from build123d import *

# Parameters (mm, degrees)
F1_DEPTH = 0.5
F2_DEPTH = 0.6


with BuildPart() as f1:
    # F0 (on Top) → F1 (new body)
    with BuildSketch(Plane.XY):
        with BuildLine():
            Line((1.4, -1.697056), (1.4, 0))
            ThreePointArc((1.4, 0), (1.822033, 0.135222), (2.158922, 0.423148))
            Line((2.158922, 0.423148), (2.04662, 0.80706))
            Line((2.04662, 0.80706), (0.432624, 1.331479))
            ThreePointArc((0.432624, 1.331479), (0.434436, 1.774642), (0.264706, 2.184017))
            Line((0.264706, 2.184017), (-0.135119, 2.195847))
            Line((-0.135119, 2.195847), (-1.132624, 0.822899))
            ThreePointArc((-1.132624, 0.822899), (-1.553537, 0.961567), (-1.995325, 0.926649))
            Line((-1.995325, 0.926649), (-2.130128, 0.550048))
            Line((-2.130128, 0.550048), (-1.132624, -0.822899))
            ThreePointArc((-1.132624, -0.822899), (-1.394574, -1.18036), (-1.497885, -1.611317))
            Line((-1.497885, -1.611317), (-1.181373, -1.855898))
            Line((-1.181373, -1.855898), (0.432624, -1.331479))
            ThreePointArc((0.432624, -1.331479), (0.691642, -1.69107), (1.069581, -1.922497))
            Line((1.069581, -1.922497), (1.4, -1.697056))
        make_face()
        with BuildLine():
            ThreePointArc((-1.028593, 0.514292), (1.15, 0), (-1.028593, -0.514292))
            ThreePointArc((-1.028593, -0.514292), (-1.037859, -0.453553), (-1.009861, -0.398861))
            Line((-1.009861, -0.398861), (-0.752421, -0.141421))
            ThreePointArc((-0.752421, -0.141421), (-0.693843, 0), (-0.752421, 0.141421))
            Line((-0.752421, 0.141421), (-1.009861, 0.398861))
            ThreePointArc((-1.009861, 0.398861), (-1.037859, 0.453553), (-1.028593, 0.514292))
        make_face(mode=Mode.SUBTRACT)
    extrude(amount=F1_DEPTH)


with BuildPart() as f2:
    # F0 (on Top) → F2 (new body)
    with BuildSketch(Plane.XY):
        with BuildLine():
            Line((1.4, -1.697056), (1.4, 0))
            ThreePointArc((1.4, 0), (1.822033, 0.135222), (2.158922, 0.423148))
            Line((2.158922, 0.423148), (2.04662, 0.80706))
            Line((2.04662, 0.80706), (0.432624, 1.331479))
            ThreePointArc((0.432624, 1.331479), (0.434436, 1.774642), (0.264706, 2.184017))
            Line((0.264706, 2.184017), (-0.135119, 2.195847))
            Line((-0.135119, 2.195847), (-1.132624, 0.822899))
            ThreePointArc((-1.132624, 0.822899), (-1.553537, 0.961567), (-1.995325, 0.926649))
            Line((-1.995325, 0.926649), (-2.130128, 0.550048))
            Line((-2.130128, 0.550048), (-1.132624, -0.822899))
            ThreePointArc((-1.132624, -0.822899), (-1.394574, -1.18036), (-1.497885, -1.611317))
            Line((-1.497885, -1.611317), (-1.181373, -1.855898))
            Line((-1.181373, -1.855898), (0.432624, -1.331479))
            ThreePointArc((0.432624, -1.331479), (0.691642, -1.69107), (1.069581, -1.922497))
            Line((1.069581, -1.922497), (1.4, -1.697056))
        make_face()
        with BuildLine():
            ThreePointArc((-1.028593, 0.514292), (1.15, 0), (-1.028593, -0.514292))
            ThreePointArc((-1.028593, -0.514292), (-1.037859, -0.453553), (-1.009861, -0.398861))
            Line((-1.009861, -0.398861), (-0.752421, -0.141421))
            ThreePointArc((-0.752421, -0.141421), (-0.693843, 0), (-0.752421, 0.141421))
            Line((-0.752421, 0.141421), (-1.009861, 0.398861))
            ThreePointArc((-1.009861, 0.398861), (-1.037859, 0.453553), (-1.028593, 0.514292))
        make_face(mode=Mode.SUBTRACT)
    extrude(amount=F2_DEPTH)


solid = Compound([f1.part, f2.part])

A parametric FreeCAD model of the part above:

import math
import FreeCAD as App
import Part
import Sketcher

V = App.Vector
Q = App.Units.Quantity

doc = App.newDocument("Part")
body = doc.addObject("PartDesign::Body", "Body")

# Sketch on XY plane
sketch1 = body.newObject("Sketcher::SketchObject", "Sketch")
sketch1.AttachmentSupport = (doc.getObject("XY_Plane"), [""])
sketch1.MapMode = "FlatFace"
sketch1.addGeometry([
    Part.LineSegment(V(1.4, -1.697056, 0), V(1.4, 0, 0)),  # 0
    Part.ArcOfCircle(Part.Circle(V(1.274999, 1.116333, 0), V(0, 0, 1), 1.12331), math.radians(-83.610961), math.radians(-38.104063)),  # 1
    Part.LineSegment(V(2.158922, 0.423148, 0), V(2.04662, 0.80706, 0)),  # 2
    Part.LineSegment(V(2.04662, 0.80706, 0), V(0.432624, 1.331479, 0)),  # 3
    Part.ArcOfCircle(Part.Circle(V(-0.667695, 1.557563, 0), V(0, 0, 1), 1.123306), math.radians(-11.611047), math.radians(33.89603)),  # 4
    Part.LineSegment(V(0.264706, 2.184017, 0), V(-0.135119, 2.195847, 0)),  # 5
    Part.LineSegment(V(-0.135119, 2.195847, 0), V(-1.132624, 0.822899, 0)),  # 6
    Part.ArcOfCircle(Part.Circle(V(-1.687662, -0.153709, 0), V(0, 0, 1), 1.123313), math.radians(60.389047), math.radians(105.89583)),  # 7
    Part.LineSegment(V(-1.995325, 0.926649, 0), V(-2.130128, 0.550048, 0)),  # 8
    Part.LineSegment(V(-2.130128, 0.550048, 0), V(-1.132624, -0.822899, 0)),  # 9
    Part.ArcOfCircle(Part.Circle(V(-0.37533, -1.652559, 0), V(0, 0, 1), 1.123312), math.radians(132.389075), math.radians(177.895909)),  # 10
    Part.LineSegment(V(-1.497885, -1.611317, 0), V(-1.181373, -1.855898, 0)),  # 11
    Part.LineSegment(V(-1.181373, -1.855898, 0), V(0.432624, -1.331479, 0)),  # 12
    Part.ArcOfCircle(Part.Circle(V(1.45569, -0.867634, 0), V(0, 0, 1), 1.123306), math.radians(-155.61107), math.radians(-110.104016)),  # 13
    Part.LineSegment(V(1.069581, -1.922497, 0), V(1.4, -1.697056, 0)),  # 14
    Part.ArcOfCircle(Part.Circle(V(-0.939152, 0.469571, 0), V(0, 0, 1), 0.099999), math.radians(153.434816), math.radians(225.000256)),  # 15
    Part.ArcOfCircle(Part.Circle(V(0, 0, 0), V(0, 0, 1), 1.15), math.radians(-153.43515), math.radians(153.43515)),  # 16
    Part.ArcOfCircle(Part.Circle(V(-0.939152, -0.469571, 0), V(0, 0, 1), 0.099999), math.radians(134.999744), math.radians(206.565184)),  # 17
    Part.LineSegment(V(-1.009861, -0.398861, 0), V(-0.752421, -0.141421, 0)),  # 18
    Part.ArcOfCircle(Part.Circle(V(-0.893844, 0, 0), V(0, 0, 1), 0.200001), math.radians(-44.999657), math.radians(44.999657)),  # 19
    Part.LineSegment(V(-0.752421, 0.141421, 0), V(-1.009861, 0.398861, 0)),  # 20
], False)
sketch1.addConstraint([
    Sketcher.Constraint("Coincident", 0, 2, 1, 1),
    Sketcher.Constraint("Coincident", 1, 2, 2, 1),
    Sketcher.Constraint("Coincident", 2, 2, 3, 1),
    Sketcher.Constraint("Coincident", 3, 2, 4, 1),
    Sketcher.Constraint("Coincident", 4, 2, 5, 1),
    Sketcher.Constraint("Coincident", 5, 2, 6, 1),
    Sketcher.Constraint("Coincident", 6, 2, 7, 1),
    Sketcher.Constraint("Coincident", 7, 2, 8, 1),
    Sketcher.Constraint("Coincident", 8, 2, 9, 1),
    Sketcher.Constraint("Coincident", 9, 2, 10, 1),
    Sketcher.Constraint("Coincident", 10, 2, 11, 1),
    Sketcher.Constraint("Coincident", 11, 2, 12, 1),
    Sketcher.Constraint("Coincident", 12, 2, 13, 1),
    Sketcher.Constraint("Coincident", 13, 2, 14, 1),
    Sketcher.Constraint("Coincident", 14, 2, 0, 1),
    Sketcher.Constraint("Coincident", 15, 1, 16, 2),
    Sketcher.Constraint("Coincident", 16, 1, 17, 2),
    Sketcher.Constraint("Coincident", 17, 1, 18, 1),
    Sketcher.Constraint("Coincident", 18, 2, 19, 1),
    Sketcher.Constraint("Coincident", 19, 2, 20, 1),
    Sketcher.Constraint("Coincident", 20, 2, 15, 2),
    Sketcher.Constraint("Vertical", 0),
    Sketcher.Constraint("Coincident", 16, 3, -1, 1),
    Sketcher.Constraint("PointOnObject", 19, 3, -1),
    Sketcher.Constraint("PointOnObject", 0, 2, -1),
    Sketcher.Constraint("Radius", 15, Q("0.099999 mm")),
    Sketcher.Constraint("Radius", 17, Q("0.099999 mm")),
    Sketcher.Constraint("Radius", 19, Q("0.200001 mm")),
    Sketcher.Constraint("Radius", 16, Q("1.15 mm")),
    Sketcher.Constraint("Distance", 2, Q("0.4 mm")),
    Sketcher.Constraint("Distance", 5, Q("0.4 mm")),
    Sketcher.Constraint("Distance", 8, Q("0.4 mm")),
    Sketcher.Constraint("Distance", 11, Q("0.4 mm")),
    Sketcher.Constraint("Distance", 14, Q("0.4 mm")),
    Sketcher.Constraint("DistanceX", -1, 1, 0, 2, Q("1.4 mm")),
    Sketcher.Constraint("Radius", 1, Q("1.12331 mm")),
    Sketcher.Constraint("DistanceX", -1, 1, 1, 3, Q("1.274999 mm")),
    Sketcher.Constraint("Radius", 4, Q("1.123306 mm")),
    Sketcher.Constraint("Radius", 7, Q("1.123313 mm")),
    Sketcher.Constraint("Radius", 10, Q("1.123312 mm")),
    Sketcher.Constraint("Radius", 13, Q("1.123306 mm")),
    Sketcher.Constraint("DistanceY", 11, 2, 9, 2, Q("1.032999 mm")),
    Sketcher.Constraint("DistanceY", 7, 3, 15, 1, Q("0.668001 mm")),
    Sketcher.Constraint("DistanceY", -1, 1, 6, 2, Q("0.822899 mm")),
    Sketcher.Constraint("DistanceY", 9, 2, -1, 1, Q("0.822899 mm")),
    Sketcher.Constraint("DistanceX", 2, 2, 1, 2, Q("0.112302 mm")),
    Sketcher.Constraint("DistanceX", 4, 3, 4, 2, Q("0.932401 mm")),
    Sketcher.Constraint("DistanceX", 7, 2, 6, 2, Q("0.862701 mm")),
    Sketcher.Constraint("DistanceY", 8, 2, 7, 2, Q("0.376601 mm")),
    Sketcher.Constraint("DistanceX", 7, 3, 17, 1, Q("0.677801 mm")),
    Sketcher.Constraint("DistanceY", 0, 1, 0, 2, Q("1.697056 mm")),
    Sketcher.Constraint("DistanceX", 7, 3, -1, 1, Q("1.687662 mm")),
    Sketcher.Constraint("DistanceY", 7, 3, -1, 1, Q("0.153709 mm")),
    Sketcher.Constraint("DistanceX", 10, 3, -1, 1, Q("0.37533 mm")),
    Sketcher.Constraint("DistanceY", 10, 3, -1, 1, Q("1.652559 mm")),
    Sketcher.Constraint("DistanceX", -1, 1, 13, 3, Q("1.45569 mm")),
    Sketcher.Constraint("DistanceX", 15, 3, -1, 1, Q("0.939152 mm")),
    Sketcher.Constraint("DistanceX", 17, 3, -1, 1, Q("0.939152 mm")),
    Sketcher.Constraint("DistanceX", -1, 1, 1, 2, Q("2.158922 mm")),
    Sketcher.Constraint("DistanceY", -1, 1, 3, 2, Q("1.331479 mm")),
    Sketcher.Constraint("DistanceX", 5, 2, -1, 1, Q("0.135119 mm")),
    Sketcher.Constraint("DistanceY", 12, 2, -1, 1, Q("1.331479 mm")),
    Sketcher.Constraint("DistanceX", -1, 1, 13, 2, Q("1.069581 mm")),
    Sketcher.Constraint("DistanceX", 18, 2, -1, 1, Q("0.752421 mm")),
    Sketcher.Constraint("DistanceY", 18, 2, -1, 1, Q("0.141421 mm")),
    Sketcher.Constraint("DistanceX", 19, 2, -1, 1, Q("0.752421 mm")),
    Sketcher.Constraint("DistanceX", 20, 2, -1, 1, Q("1.009861 mm")),
    Sketcher.Constraint("DistanceY", 1, 3, 4, 3, Q("0.44123 mm")),
    Sketcher.Constraint("DistanceX", 19, 3, 4, 3, Q("0.226149 mm")),
    Sketcher.Constraint("DistanceX", 10, 2, 9, 2, Q("0.365261 mm")),
    Sketcher.Constraint("DistanceX", 16, 1, 17, 3, Q("0.089441 mm")),
])
pad1 = body.newObject("PartDesign::Pad", "Pad")
pad1.Profile = sketch1
pad1.Length = 0.5
body2 = doc.addObject("PartDesign::Body", "Body001")

# Sketch on XY plane
sketch2 = body2.newObject("Sketcher::SketchObject", "Sketch001")
sketch2.AttachmentSupport = (doc.getObject("XY_Plane001"), [""])
sketch2.MapMode = "FlatFace"
sketch2.addGeometry([
    Part.LineSegment(V(1.4, -1.697056, 0), V(1.4, 0, 0)),  # 0
    Part.ArcOfCircle(Part.Circle(V(1.274999, 1.116333, 0), V(0, 0, 1), 1.12331), math.radians(-83.610961), math.radians(-38.104063)),  # 1
    Part.LineSegment(V(2.158922, 0.423148, 0), V(2.04662, 0.80706, 0)),  # 2
    Part.LineSegment(V(2.04662, 0.80706, 0), V(0.432624, 1.331479, 0)),  # 3
    Part.ArcOfCircle(Part.Circle(V(-0.667695, 1.557563, 0), V(0, 0, 1), 1.123306), math.radians(-11.611047), math.radians(33.89603)),  # 4
    Part.LineSegment(V(0.264706, 2.184017, 0), V(-0.135119, 2.195847, 0)),  # 5
    Part.LineSegment(V(-0.135119, 2.195847, 0), V(-1.132624, 0.822899, 0)),  # 6
    Part.ArcOfCircle(Part.Circle(V(-1.687662, -0.153709, 0), V(0, 0, 1), 1.123313), math.radians(60.389047), math.radians(105.89583)),  # 7
    Part.LineSegment(V(-1.995325, 0.926649, 0), V(-2.130128, 0.550048, 0)),  # 8
    Part.LineSegment(V(-2.130128, 0.550048, 0), V(-1.132624, -0.822899, 0)),  # 9
    Part.ArcOfCircle(Part.Circle(V(-0.37533, -1.652559, 0), V(0, 0, 1), 1.123312), math.radians(132.389075), math.radians(177.895909)),  # 10
    Part.LineSegment(V(-1.497885, -1.611317, 0), V(-1.181373, -1.855898, 0)),  # 11
    Part.LineSegment(V(-1.181373, -1.855898, 0), V(0.432624, -1.331479, 0)),  # 12
    Part.ArcOfCircle(Part.Circle(V(1.45569, -0.867634, 0), V(0, 0, 1), 1.123306), math.radians(-155.61107), math.radians(-110.104016)),  # 13
    Part.LineSegment(V(1.069581, -1.922497, 0), V(1.4, -1.697056, 0)),  # 14
    Part.ArcOfCircle(Part.Circle(V(-0.939152, 0.469571, 0), V(0, 0, 1), 0.099999), math.radians(153.434816), math.radians(225.000256)),  # 15
    Part.ArcOfCircle(Part.Circle(V(0, 0, 0), V(0, 0, 1), 1.15), math.radians(-153.43515), math.radians(153.43515)),  # 16
    Part.ArcOfCircle(Part.Circle(V(-0.939152, -0.469571, 0), V(0, 0, 1), 0.099999), math.radians(134.999744), math.radians(206.565184)),  # 17
    Part.LineSegment(V(-1.009861, -0.398861, 0), V(-0.752421, -0.141421, 0)),  # 18
    Part.ArcOfCircle(Part.Circle(V(-0.893844, 0, 0), V(0, 0, 1), 0.200001), math.radians(-44.999657), math.radians(44.999657)),  # 19
    Part.LineSegment(V(-0.752421, 0.141421, 0), V(-1.009861, 0.398861, 0)),  # 20
], False)
sketch2.addConstraint([
    Sketcher.Constraint("Coincident", 0, 2, 1, 1),
    Sketcher.Constraint("Coincident", 1, 2, 2, 1),
    Sketcher.Constraint("Coincident", 2, 2, 3, 1),
    Sketcher.Constraint("Coincident", 3, 2, 4, 1),
    Sketcher.Constraint("Coincident", 4, 2, 5, 1),
    Sketcher.Constraint("Coincident", 5, 2, 6, 1),
    Sketcher.Constraint("Coincident", 6, 2, 7, 1),
    Sketcher.Constraint("Coincident", 7, 2, 8, 1),
    Sketcher.Constraint("Coincident", 8, 2, 9, 1),
    Sketcher.Constraint("Coincident", 9, 2, 10, 1),
    Sketcher.Constraint("Coincident", 10, 2, 11, 1),
    Sketcher.Constraint("Coincident", 11, 2, 12, 1),
    Sketcher.Constraint("Coincident", 12, 2, 13, 1),
    Sketcher.Constraint("Coincident", 13, 2, 14, 1),
    Sketcher.Constraint("Coincident", 14, 2, 0, 1),
    Sketcher.Constraint("Coincident", 15, 1, 16, 2),
    Sketcher.Constraint("Coincident", 16, 1, 17, 2),
    Sketcher.Constraint("Coincident", 17, 1, 18, 1),
    Sketcher.Constraint("Coincident", 18, 2, 19, 1),
    Sketcher.Constraint("Coincident", 19, 2, 20, 1),
    Sketcher.Constraint("Coincident", 20, 2, 15, 2),
    Sketcher.Constraint("Vertical", 0),
    Sketcher.Constraint("Coincident", 16, 3, -1, 1),
    Sketcher.Constraint("PointOnObject", 19, 3, -1),
    Sketcher.Constraint("PointOnObject", 0, 2, -1),
    Sketcher.Constraint("Radius", 15, Q("0.099999 mm")),
    Sketcher.Constraint("Radius", 17, Q("0.099999 mm")),
    Sketcher.Constraint("Radius", 19, Q("0.200001 mm")),
    Sketcher.Constraint("Radius", 16, Q("1.15 mm")),
    Sketcher.Constraint("Distance", 2, Q("0.4 mm")),
    Sketcher.Constraint("Distance", 5, Q("0.4 mm")),
    Sketcher.Constraint("Distance", 8, Q("0.4 mm")),
    Sketcher.Constraint("Distance", 11, Q("0.4 mm")),
    Sketcher.Constraint("Distance", 14, Q("0.4 mm")),
    Sketcher.Constraint("DistanceX", -1, 1, 0, 2, Q("1.4 mm")),
    Sketcher.Constraint("Radius", 1, Q("1.12331 mm")),
    Sketcher.Constraint("DistanceX", -1, 1, 1, 3, Q("1.274999 mm")),
    Sketcher.Constraint("Radius", 4, Q("1.123306 mm")),
    Sketcher.Constraint("Radius", 7, Q("1.123313 mm")),
    Sketcher.Constraint("Radius", 10, Q("1.123312 mm")),
    Sketcher.Constraint("Radius", 13, Q("1.123306 mm")),
    Sketcher.Constraint("DistanceY", 11, 2, 9, 2, Q("1.032999 mm")),
    Sketcher.Constraint("DistanceY", 7, 3, 15, 1, Q("0.668001 mm")),
    Sketcher.Constraint("DistanceY", -1, 1, 6, 2, Q("0.822899 mm")),
    Sketcher.Constraint("DistanceY", 9, 2, -1, 1, Q("0.822899 mm")),
    Sketcher.Constraint("DistanceX", 2, 2, 1, 2, Q("0.112302 mm")),
    Sketcher.Constraint("DistanceX", 4, 3, 4, 2, Q("0.932401 mm")),
    Sketcher.Constraint("DistanceX", 7, 2, 6, 2, Q("0.862701 mm")),
    Sketcher.Constraint("DistanceY", 8, 2, 7, 2, Q("0.376601 mm")),
    Sketcher.Constraint("DistanceX", 7, 3, 17, 1, Q("0.677801 mm")),
    Sketcher.Constraint("DistanceY", 0, 1, 0, 2, Q("1.697056 mm")),
    Sketcher.Constraint("DistanceX", 7, 3, -1, 1, Q("1.687662 mm")),
    Sketcher.Constraint("DistanceY", 7, 3, -1, 1, Q("0.153709 mm")),
    Sketcher.Constraint("DistanceX", 10, 3, -1, 1, Q("0.37533 mm")),
    Sketcher.Constraint("DistanceY", 10, 3, -1, 1, Q("1.652559 mm")),
    Sketcher.Constraint("DistanceX", -1, 1, 13, 3, Q("1.45569 mm")),
    Sketcher.Constraint("DistanceX", 15, 3, -1, 1, Q("0.939152 mm")),
    Sketcher.Constraint("DistanceX", 17, 3, -1, 1, Q("0.939152 mm")),
    Sketcher.Constraint("DistanceX", -1, 1, 1, 2, Q("2.158922 mm")),
    Sketcher.Constraint("DistanceY", -1, 1, 3, 2, Q("1.331479 mm")),
    Sketcher.Constraint("DistanceX", 5, 2, -1, 1, Q("0.135119 mm")),
    Sketcher.Constraint("DistanceY", 12, 2, -1, 1, Q("1.331479 mm")),
    Sketcher.Constraint("DistanceX", -1, 1, 13, 2, Q("1.069581 mm")),
    Sketcher.Constraint("DistanceX", 18, 2, -1, 1, Q("0.752421 mm")),
    Sketcher.Constraint("DistanceY", 18, 2, -1, 1, Q("0.141421 mm")),
    Sketcher.Constraint("DistanceX", 19, 2, -1, 1, Q("0.752421 mm")),
    Sketcher.Constraint("DistanceX", 20, 2, -1, 1, Q("1.009861 mm")),
    Sketcher.Constraint("DistanceY", 1, 3, 4, 3, Q("0.44123 mm")),
    Sketcher.Constraint("DistanceX", 19, 3, 4, 3, Q("0.226149 mm")),
    Sketcher.Constraint("DistanceX", 10, 2, 9, 2, Q("0.365261 mm")),
    Sketcher.Constraint("DistanceX", 16, 1, 17, 3, Q("0.089441 mm")),
])
pad2 = body2.newObject("PartDesign::Pad", "Pad001")
pad2.Profile = sketch2
pad2.Length = 0.6

doc.recompute()
